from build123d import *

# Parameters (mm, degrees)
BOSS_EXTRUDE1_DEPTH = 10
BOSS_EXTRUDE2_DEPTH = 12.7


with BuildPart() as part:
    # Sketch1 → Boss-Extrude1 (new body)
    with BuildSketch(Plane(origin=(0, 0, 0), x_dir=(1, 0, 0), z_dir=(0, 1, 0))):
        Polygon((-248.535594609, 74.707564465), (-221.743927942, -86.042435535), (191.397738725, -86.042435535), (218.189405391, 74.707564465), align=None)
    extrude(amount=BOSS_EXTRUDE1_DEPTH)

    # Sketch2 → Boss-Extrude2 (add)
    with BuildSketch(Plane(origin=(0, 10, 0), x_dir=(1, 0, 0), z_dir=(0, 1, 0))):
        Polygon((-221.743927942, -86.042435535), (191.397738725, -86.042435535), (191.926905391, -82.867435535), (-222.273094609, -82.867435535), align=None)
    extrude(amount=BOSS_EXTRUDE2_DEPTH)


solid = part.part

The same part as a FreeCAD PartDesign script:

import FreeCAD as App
import Part
import Sketcher

V = App.Vector

doc = App.newDocument("Part")
params = doc.addObject("Spreadsheet::Sheet", "Params")
for row, (alias, value) in enumerate([
    ("pad1_length", "10 mm"),
    ("sketch2_width", "414.2 mm"),
    ("pad2_length", "12.7 mm"),
], start=1):
    params.set(f"A{row}", alias)
    params.set(f"B{row}", "=" + value)
    params.setAlias(f"B{row}", alias)

body = doc.addObject("PartDesign::Body", "Body")

sketch1 = body.newObject("Sketcher::SketchObject", "Sketch")
sketch1.AttachmentSupport = (doc.getObject("XZ_Plane"), [""])
sketch1.MapMode = "FlatFace"
sketch1.addGeometry(Part.LineSegment(V(-248.535595, -74.707564, 0), V(-221.743928, 86.042436, 0)), False)
sketch1.addGeometry(Part.LineSegment(V(-221.743928, 86.042436, 0), V(191.397739, 86.042436, 0)), False)
sketch1.addGeometry(Part.LineSegment(V(191.397739, 86.042436, 0), V(218.189405, -74.707564, 0)), False)
sketch1.addGeometry(Part.LineSegment(V(218.189405, -74.707564, 0), V(-248.535595, -74.707564, 0)), False)
sketch1.addConstraint(Sketcher.Constraint("Coincident", 0, 2, 1, 1))
sketch1.addConstraint(Sketcher.Constraint("Coincident", 1, 2, 2, 1))
sketch1.addConstraint(Sketcher.Constraint("Coincident", 2, 2, 3, 1))
sketch1.addConstraint(Sketcher.Constraint("Coincident", 3, 2, 0, 1))
sketch1.addConstraint(Sketcher.Constraint("Horizontal", 1))
sketch1.addConstraint(Sketcher.Constraint("Horizontal", 3))
sketch1.addConstraint(Sketcher.Constraint("Equal", 0, 2))
sketch1.addConstraint(Sketcher.Constraint("DistanceX", 3, 2, 3, 1, 466.725))
sketch1.addConstraint(Sketcher.Constraint("DistanceY", 2, 2, 1, 2, 160.75))
sketch1.addConstraint(Sketcher.Constraint("DistanceX", 1, 1, 1, 2, 413.141667))
sketch1.addConstraint(Sketcher.Constraint("DistanceX", -1, 1, 1, 2, 191.397739))
sketch1.addConstraint(Sketcher.Constraint("DistanceY", -1, 1, 0, 2, 86.042436))
pad1 = body.newObject("PartDesign::Pad", "Pad")
pad1.Profile = sketch1
pad1.setExpression("Length", "Params.pad1_length")
pad1.Reversed = True

sketch2 = body.newObject("Sketcher::SketchObject", "Sketch001")
sketch2.AttachmentSupport = (doc.getObject("XZ_Plane"), [""])
sketch2.MapMode = "FlatFace"
sketch2.AttachmentOffset = App.Placement(V(0, 0, -10), App.Rotation())
sketch2.addGeometry(Part.LineSegment(V(-221.743928, 86.042436, 0), V(191.397739, 86.042436, 0)), False)
sketch2.addGeometry(Part.LineSegment(V(191.397739, 86.042436, 0), V(191.926905, 82.867436, 0)), False)
sketch2.addGeometry(Part.LineSegment(V(191.926905, 82.867436, 0), V(-222.273095, 82.867436, 0)), False)
sketch2.addGeometry(Part.LineSegment(V(-222.273095, 82.867436, 0), V(-221.743928, 86.042436, 0)), False)
sketch2.addConstraint(Sketcher.Constraint("Coincident", 0, 2, 1, 1))
sketch2.addConstraint(Sketcher.Constraint("Coincident", 1, 2, 2, 1))
sketch2.addConstraint(Sketcher.Constraint("Coincident", 2, 2, 3, 1))
sketch2.addConstraint(Sketcher.Constraint("Coincident", 3, 2, 0, 1))
sketch2.addConstraint(Sketcher.Constraint("Horizontal", 0))
sketch2.addConstraint(Sketcher.Constraint("Horizontal", 2))
sketch2.addConstraint(Sketcher.Constraint("Equal", 1, 3))
sketch2.addConstraint(Sketcher.Constraint("DistanceX", 2, 2, 2, 1, 414.2))
sketch2.addConstraint(Sketcher.Constraint("DistanceY", 1, 2, 0, 2, 3.175))
sketch2.addConstraint(Sketcher.Constraint("DistanceX", 0, 1, 0, 2, 413.141667))
sketch2.addConstraint(Sketcher.Constraint("DistanceX", -1, 1, 0, 2, 191.397739))
sketch2.addConstraint(Sketcher.Constraint("DistanceY", -1, 1, 0, 2, 86.042436))
sketch2.setExpression("Constraints[7]", "Params.sketch2_width")
pad2 = body.newObject("PartDesign::Pad", "Pad001")
pad2.Profile = sketch2
pad2.setExpression("Length", "Params.pad2_length")
pad2.Reversed = True

doc.recompute()
